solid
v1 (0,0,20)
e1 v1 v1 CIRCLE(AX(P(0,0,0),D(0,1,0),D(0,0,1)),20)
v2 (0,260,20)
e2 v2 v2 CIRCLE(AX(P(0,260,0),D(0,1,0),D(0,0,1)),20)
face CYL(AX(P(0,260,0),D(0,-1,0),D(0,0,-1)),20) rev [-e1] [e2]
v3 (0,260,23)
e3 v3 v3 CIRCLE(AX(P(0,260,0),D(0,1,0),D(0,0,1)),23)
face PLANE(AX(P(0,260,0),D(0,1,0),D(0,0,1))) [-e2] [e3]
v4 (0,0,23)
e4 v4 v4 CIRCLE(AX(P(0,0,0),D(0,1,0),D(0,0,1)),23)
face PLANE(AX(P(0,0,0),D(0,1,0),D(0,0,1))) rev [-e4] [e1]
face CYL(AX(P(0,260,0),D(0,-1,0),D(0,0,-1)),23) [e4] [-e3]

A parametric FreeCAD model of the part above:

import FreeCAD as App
import Part
import Sketcher

V = App.Vector

doc = App.newDocument("Part")
body = doc.addObject("PartDesign::Body", "Body")

sketch1 = body.newObject("Sketcher::SketchObject", "Sketch")
sketch1.AttachmentSupport = (doc.getObject("XZ_Plane"), [""])
sketch1.MapMode = "FlatFace"
sketch1.addGeometry(Part.Circle(V(0, 0, 0), V(0, 0, 1), 23), False)
sketch1.addGeometry(Part.Circle(V(0, 0, 0), V(0, 0, 1), 20), False)
sketch1.addConstraint(Sketcher.Constraint("Coincident", 0, 3, -1, 1))
sketch1.addConstraint(Sketcher.Constraint("Coincident", 1, 3, -1, 1))
sketch1.addConstraint(Sketcher.Constraint("Diameter", 0, 46.0))
sketch1.addConstraint(Sketcher.Constraint("Diameter", 1, 40.0))
pad1 = body.newObject("PartDesign::Pad", "Pad")
pad1.Profile = sketch1
pad1.Length = 260
pad1.Reversed = True

doc.recompute()
